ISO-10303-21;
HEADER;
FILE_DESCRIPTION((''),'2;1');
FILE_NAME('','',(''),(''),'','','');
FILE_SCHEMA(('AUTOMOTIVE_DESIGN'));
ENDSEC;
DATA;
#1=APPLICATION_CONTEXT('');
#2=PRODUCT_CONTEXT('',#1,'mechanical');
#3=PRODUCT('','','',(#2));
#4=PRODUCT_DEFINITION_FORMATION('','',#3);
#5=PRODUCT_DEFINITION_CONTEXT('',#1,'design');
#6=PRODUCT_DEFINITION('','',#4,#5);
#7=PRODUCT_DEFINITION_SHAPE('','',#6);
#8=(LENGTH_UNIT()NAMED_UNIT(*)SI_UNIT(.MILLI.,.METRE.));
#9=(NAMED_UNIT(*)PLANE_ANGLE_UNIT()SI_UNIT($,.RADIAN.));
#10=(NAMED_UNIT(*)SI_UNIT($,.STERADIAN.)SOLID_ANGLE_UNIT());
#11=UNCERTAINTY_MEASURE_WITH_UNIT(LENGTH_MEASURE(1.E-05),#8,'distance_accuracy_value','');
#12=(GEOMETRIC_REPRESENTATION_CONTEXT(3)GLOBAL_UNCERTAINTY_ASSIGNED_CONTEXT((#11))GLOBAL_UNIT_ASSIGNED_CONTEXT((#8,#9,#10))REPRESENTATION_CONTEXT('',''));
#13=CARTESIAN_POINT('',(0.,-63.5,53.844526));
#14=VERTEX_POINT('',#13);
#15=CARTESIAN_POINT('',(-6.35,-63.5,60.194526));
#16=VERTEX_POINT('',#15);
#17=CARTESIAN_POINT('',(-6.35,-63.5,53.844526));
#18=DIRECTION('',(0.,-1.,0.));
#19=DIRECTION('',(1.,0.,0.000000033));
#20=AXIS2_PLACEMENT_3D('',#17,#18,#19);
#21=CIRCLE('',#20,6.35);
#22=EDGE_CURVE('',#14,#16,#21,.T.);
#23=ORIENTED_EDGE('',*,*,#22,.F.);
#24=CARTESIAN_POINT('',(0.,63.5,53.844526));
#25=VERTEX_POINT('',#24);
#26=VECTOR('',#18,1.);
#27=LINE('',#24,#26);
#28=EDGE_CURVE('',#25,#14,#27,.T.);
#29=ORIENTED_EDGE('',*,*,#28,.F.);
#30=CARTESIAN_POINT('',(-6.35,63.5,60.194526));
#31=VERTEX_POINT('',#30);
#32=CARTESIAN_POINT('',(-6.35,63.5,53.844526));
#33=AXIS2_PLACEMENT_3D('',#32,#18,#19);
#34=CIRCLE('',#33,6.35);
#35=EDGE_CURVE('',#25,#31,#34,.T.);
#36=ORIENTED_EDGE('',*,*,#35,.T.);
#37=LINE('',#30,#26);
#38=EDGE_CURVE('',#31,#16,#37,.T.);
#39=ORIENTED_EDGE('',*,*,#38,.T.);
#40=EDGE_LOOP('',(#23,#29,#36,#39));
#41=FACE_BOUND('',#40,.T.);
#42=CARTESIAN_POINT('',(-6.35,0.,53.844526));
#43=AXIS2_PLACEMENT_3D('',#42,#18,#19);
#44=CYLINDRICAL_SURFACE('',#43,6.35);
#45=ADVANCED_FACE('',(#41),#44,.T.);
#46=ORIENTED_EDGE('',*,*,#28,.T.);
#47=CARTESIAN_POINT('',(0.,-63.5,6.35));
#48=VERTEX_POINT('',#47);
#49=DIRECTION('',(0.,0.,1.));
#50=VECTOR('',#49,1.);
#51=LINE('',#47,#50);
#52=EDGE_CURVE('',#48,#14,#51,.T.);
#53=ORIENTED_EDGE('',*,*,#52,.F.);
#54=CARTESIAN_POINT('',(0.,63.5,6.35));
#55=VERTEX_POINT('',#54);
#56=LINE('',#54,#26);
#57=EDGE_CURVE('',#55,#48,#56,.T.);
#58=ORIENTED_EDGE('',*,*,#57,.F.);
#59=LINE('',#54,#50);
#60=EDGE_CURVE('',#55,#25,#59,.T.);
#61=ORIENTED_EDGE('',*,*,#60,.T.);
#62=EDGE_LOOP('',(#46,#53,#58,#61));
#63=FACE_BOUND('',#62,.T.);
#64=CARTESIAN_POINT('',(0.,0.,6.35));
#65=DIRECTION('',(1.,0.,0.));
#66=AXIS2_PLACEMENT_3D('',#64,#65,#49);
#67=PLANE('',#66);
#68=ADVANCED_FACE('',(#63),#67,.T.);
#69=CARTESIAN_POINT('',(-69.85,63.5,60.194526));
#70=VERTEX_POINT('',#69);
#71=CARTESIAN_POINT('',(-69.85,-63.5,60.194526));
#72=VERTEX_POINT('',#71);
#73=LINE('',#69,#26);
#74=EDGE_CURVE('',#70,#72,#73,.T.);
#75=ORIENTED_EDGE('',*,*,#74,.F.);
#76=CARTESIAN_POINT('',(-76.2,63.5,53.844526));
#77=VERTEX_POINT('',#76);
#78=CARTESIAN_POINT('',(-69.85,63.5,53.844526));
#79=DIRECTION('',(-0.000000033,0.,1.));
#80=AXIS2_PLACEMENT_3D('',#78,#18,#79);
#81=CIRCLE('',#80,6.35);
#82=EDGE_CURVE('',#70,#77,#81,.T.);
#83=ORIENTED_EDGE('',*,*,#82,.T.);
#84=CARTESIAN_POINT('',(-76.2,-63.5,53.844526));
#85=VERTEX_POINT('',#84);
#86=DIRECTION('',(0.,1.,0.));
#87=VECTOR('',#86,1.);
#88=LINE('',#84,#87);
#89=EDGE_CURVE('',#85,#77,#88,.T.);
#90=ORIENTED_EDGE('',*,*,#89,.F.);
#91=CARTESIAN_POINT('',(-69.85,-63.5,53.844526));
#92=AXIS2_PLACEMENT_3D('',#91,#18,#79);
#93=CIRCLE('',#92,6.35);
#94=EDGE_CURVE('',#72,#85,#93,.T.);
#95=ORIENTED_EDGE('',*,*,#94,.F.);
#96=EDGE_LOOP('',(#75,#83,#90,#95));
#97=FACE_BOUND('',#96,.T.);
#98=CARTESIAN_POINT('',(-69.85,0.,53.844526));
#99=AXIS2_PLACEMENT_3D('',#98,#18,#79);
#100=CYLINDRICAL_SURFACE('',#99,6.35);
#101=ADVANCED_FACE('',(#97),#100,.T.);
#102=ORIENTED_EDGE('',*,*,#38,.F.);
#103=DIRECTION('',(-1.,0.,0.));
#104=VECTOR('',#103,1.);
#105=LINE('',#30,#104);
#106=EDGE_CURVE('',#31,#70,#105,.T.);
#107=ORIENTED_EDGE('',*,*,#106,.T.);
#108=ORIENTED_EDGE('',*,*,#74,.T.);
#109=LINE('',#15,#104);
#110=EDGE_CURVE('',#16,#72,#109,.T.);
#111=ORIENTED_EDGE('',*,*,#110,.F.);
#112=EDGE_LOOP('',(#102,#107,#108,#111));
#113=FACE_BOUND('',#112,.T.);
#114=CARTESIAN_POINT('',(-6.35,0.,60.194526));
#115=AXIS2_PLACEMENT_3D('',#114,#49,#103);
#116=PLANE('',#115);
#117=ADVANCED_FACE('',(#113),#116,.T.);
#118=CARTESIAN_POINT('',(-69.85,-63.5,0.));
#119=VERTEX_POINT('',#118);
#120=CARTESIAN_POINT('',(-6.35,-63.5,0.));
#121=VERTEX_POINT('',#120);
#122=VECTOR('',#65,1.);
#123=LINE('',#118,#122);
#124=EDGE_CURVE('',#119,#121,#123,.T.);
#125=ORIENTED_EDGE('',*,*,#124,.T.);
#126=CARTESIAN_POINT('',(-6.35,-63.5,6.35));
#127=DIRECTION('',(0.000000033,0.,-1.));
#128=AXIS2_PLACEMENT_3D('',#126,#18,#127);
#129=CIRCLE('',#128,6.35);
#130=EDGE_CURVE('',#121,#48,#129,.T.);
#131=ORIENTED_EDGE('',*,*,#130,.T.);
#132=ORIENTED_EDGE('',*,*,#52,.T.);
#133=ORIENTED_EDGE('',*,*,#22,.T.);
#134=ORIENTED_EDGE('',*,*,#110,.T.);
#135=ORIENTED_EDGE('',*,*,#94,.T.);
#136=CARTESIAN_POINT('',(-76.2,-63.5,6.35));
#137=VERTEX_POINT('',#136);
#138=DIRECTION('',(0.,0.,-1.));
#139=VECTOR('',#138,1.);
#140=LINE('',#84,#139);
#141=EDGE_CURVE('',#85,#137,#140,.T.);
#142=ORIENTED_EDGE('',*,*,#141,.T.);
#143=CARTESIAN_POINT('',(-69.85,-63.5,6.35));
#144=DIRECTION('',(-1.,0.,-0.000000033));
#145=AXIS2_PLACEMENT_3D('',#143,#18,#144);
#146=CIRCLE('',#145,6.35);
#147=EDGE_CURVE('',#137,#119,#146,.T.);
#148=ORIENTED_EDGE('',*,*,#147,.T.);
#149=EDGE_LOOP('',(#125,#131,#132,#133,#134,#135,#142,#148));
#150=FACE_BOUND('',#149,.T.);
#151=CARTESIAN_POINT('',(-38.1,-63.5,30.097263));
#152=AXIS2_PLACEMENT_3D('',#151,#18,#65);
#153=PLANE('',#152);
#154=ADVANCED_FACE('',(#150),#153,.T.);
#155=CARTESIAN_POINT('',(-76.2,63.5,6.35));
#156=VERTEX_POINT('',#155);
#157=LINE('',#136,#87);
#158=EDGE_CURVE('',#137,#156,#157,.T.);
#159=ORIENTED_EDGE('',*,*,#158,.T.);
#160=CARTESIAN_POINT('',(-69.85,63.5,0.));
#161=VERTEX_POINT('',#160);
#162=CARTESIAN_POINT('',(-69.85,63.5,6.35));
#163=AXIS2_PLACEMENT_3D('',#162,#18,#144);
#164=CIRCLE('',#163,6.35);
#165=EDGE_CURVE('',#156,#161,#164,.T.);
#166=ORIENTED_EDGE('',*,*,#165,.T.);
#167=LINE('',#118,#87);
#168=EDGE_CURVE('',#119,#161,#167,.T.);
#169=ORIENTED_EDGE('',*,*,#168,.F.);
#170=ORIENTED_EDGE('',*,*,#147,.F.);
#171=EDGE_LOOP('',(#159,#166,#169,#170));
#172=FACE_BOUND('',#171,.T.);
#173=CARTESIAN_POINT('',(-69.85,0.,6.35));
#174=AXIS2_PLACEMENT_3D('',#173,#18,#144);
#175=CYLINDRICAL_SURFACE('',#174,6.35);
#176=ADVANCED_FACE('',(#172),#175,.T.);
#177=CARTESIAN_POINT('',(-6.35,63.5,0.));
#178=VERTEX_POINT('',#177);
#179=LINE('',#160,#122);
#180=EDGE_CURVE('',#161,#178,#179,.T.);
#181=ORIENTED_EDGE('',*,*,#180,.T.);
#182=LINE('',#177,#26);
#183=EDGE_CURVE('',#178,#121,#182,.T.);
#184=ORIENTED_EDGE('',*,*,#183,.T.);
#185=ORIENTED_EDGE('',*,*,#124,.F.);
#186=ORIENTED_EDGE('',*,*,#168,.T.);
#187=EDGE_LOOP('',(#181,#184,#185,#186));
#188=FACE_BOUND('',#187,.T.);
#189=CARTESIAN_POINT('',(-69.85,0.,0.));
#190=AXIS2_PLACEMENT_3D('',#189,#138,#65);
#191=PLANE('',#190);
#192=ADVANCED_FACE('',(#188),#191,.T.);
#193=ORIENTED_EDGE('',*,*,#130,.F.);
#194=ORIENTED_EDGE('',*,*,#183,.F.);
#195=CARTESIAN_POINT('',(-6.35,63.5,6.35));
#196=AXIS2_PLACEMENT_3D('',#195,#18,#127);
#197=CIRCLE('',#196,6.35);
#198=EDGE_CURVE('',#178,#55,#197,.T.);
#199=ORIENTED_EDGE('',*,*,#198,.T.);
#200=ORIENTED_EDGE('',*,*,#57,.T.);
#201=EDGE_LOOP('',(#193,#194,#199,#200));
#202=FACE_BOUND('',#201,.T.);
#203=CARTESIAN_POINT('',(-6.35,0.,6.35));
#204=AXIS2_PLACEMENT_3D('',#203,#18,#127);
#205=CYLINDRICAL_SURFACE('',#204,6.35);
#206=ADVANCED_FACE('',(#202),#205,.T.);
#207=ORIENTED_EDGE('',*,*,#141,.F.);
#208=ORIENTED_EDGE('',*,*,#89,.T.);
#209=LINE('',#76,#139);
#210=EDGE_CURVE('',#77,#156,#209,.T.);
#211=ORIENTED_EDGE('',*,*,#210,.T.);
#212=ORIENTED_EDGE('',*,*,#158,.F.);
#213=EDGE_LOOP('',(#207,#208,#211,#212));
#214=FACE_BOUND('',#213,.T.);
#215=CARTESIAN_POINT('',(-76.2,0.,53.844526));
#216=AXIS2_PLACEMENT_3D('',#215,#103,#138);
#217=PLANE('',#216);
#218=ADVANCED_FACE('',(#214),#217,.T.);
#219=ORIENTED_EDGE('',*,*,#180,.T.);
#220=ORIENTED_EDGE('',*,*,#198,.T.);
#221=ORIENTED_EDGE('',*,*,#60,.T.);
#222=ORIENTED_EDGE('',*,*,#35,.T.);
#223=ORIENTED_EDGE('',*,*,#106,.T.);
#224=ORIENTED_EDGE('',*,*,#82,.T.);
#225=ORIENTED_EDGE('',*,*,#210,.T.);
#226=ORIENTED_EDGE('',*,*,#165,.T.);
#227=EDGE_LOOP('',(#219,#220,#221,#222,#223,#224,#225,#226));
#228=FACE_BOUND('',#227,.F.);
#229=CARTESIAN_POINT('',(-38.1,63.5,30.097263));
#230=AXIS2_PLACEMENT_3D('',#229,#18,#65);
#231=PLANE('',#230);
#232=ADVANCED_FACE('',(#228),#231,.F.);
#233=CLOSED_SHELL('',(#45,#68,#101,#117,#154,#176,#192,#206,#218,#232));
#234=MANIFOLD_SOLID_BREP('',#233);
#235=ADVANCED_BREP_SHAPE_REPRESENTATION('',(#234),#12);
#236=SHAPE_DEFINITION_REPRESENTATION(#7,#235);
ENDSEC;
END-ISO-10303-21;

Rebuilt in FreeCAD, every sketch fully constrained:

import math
import FreeCAD as App
import Part
import Sketcher
Q = App.Units.Quantity

doc = App.newDocument("Part")
body = doc.addObject("PartDesign::Body", "Body")

sketch1 = doc.addObject("Sketcher::SketchObject", "Sketch")
body.addObject(sketch1)
sketch1.AttachmentSupport = (doc.XZ_Plane, [""])
sketch1.MapMode = "FlatFace"
sketch1.addGeometry([
    Part.LineSegment(App.Vector(-69.85, 0, 0), App.Vector(-6.35, 0, 0)),
    Part.ArcOfCircle(Part.Circle(App.Vector(-6.35, 6.35, 0), App.Vector(0, 0, 1), 6.35), math.radians(-89.999998), math.radians(-0.000002)),
    Part.LineSegment(App.Vector(0, 6.35, 0), App.Vector(0, 53.844526, 0)),
    Part.ArcOfCircle(Part.Circle(App.Vector(-6.35, 53.844526, 0), App.Vector(0, 0, 1), 6.35), math.radians(0.000002), math.radians(89.999998)),
    Part.LineSegment(App.Vector(-6.35, 60.194526, 0), App.Vector(-69.85, 60.194526, 0)),
    Part.ArcOfCircle(Part.Circle(App.Vector(-69.85, 53.844526, 0), App.Vector(0, 0, 1), 6.35), math.radians(90.000002), math.radians(179.999998)),
    Part.LineSegment(App.Vector(-76.2, 53.844526, 0), App.Vector(-76.2, 6.35, 0)),
    Part.ArcOfCircle(Part.Circle(App.Vector(-69.85, 6.35, 0), App.Vector(0, 0, 1), 6.35), math.radians(-179.999998), math.radians(-90.000002)),
], False)
sketch1.addConstraint([
    Sketcher.Constraint("Tangent", 0, 2, 1, 1),
    Sketcher.Constraint("Tangent", 1, 2, 2, 1),
    Sketcher.Constraint("Tangent", 2, 2, 3, 1),
    Sketcher.Constraint("Tangent", 3, 2, 4, 1),
    Sketcher.Constraint("Tangent", 4, 2, 5, 1),
    Sketcher.Constraint("Tangent", 5, 2, 6, 1),
    Sketcher.Constraint("Tangent", 6, 2, 7, 1),
    Sketcher.Constraint("Tangent", 7, 2, 0, 1),
    Sketcher.Constraint("Horizontal", 0),
    Sketcher.Constraint("Vertical", 2),
    Sketcher.Constraint("Horizontal", 4),
    Sketcher.Constraint("Vertical", 6),
    Sketcher.Constraint("Equal", 1, 3),
    Sketcher.Constraint("Equal", 3, 5),
    Sketcher.Constraint("Equal", 5, 7),
    Sketcher.Constraint("PointOnObject", 0, 2, -1),
    Sketcher.Constraint("PointOnObject", 1, 2, -2),
    Sketcher.Constraint("Radius", 1, Q("0.25 in")),
    Sketcher.Constraint("DistanceX", 0, 1, 0, 2, Q("2.5 in")),
    Sketcher.Constraint("DistanceY", 2, 1, 2, 2, 47.494526),
])
pad1 = doc.addObject("PartDesign::Pad", "Pad")
body.addObject(pad1)
pad1.Profile = sketch1
pad1.Length = Q("5 in")
pad1.Midplane = True

doc.recompute()
